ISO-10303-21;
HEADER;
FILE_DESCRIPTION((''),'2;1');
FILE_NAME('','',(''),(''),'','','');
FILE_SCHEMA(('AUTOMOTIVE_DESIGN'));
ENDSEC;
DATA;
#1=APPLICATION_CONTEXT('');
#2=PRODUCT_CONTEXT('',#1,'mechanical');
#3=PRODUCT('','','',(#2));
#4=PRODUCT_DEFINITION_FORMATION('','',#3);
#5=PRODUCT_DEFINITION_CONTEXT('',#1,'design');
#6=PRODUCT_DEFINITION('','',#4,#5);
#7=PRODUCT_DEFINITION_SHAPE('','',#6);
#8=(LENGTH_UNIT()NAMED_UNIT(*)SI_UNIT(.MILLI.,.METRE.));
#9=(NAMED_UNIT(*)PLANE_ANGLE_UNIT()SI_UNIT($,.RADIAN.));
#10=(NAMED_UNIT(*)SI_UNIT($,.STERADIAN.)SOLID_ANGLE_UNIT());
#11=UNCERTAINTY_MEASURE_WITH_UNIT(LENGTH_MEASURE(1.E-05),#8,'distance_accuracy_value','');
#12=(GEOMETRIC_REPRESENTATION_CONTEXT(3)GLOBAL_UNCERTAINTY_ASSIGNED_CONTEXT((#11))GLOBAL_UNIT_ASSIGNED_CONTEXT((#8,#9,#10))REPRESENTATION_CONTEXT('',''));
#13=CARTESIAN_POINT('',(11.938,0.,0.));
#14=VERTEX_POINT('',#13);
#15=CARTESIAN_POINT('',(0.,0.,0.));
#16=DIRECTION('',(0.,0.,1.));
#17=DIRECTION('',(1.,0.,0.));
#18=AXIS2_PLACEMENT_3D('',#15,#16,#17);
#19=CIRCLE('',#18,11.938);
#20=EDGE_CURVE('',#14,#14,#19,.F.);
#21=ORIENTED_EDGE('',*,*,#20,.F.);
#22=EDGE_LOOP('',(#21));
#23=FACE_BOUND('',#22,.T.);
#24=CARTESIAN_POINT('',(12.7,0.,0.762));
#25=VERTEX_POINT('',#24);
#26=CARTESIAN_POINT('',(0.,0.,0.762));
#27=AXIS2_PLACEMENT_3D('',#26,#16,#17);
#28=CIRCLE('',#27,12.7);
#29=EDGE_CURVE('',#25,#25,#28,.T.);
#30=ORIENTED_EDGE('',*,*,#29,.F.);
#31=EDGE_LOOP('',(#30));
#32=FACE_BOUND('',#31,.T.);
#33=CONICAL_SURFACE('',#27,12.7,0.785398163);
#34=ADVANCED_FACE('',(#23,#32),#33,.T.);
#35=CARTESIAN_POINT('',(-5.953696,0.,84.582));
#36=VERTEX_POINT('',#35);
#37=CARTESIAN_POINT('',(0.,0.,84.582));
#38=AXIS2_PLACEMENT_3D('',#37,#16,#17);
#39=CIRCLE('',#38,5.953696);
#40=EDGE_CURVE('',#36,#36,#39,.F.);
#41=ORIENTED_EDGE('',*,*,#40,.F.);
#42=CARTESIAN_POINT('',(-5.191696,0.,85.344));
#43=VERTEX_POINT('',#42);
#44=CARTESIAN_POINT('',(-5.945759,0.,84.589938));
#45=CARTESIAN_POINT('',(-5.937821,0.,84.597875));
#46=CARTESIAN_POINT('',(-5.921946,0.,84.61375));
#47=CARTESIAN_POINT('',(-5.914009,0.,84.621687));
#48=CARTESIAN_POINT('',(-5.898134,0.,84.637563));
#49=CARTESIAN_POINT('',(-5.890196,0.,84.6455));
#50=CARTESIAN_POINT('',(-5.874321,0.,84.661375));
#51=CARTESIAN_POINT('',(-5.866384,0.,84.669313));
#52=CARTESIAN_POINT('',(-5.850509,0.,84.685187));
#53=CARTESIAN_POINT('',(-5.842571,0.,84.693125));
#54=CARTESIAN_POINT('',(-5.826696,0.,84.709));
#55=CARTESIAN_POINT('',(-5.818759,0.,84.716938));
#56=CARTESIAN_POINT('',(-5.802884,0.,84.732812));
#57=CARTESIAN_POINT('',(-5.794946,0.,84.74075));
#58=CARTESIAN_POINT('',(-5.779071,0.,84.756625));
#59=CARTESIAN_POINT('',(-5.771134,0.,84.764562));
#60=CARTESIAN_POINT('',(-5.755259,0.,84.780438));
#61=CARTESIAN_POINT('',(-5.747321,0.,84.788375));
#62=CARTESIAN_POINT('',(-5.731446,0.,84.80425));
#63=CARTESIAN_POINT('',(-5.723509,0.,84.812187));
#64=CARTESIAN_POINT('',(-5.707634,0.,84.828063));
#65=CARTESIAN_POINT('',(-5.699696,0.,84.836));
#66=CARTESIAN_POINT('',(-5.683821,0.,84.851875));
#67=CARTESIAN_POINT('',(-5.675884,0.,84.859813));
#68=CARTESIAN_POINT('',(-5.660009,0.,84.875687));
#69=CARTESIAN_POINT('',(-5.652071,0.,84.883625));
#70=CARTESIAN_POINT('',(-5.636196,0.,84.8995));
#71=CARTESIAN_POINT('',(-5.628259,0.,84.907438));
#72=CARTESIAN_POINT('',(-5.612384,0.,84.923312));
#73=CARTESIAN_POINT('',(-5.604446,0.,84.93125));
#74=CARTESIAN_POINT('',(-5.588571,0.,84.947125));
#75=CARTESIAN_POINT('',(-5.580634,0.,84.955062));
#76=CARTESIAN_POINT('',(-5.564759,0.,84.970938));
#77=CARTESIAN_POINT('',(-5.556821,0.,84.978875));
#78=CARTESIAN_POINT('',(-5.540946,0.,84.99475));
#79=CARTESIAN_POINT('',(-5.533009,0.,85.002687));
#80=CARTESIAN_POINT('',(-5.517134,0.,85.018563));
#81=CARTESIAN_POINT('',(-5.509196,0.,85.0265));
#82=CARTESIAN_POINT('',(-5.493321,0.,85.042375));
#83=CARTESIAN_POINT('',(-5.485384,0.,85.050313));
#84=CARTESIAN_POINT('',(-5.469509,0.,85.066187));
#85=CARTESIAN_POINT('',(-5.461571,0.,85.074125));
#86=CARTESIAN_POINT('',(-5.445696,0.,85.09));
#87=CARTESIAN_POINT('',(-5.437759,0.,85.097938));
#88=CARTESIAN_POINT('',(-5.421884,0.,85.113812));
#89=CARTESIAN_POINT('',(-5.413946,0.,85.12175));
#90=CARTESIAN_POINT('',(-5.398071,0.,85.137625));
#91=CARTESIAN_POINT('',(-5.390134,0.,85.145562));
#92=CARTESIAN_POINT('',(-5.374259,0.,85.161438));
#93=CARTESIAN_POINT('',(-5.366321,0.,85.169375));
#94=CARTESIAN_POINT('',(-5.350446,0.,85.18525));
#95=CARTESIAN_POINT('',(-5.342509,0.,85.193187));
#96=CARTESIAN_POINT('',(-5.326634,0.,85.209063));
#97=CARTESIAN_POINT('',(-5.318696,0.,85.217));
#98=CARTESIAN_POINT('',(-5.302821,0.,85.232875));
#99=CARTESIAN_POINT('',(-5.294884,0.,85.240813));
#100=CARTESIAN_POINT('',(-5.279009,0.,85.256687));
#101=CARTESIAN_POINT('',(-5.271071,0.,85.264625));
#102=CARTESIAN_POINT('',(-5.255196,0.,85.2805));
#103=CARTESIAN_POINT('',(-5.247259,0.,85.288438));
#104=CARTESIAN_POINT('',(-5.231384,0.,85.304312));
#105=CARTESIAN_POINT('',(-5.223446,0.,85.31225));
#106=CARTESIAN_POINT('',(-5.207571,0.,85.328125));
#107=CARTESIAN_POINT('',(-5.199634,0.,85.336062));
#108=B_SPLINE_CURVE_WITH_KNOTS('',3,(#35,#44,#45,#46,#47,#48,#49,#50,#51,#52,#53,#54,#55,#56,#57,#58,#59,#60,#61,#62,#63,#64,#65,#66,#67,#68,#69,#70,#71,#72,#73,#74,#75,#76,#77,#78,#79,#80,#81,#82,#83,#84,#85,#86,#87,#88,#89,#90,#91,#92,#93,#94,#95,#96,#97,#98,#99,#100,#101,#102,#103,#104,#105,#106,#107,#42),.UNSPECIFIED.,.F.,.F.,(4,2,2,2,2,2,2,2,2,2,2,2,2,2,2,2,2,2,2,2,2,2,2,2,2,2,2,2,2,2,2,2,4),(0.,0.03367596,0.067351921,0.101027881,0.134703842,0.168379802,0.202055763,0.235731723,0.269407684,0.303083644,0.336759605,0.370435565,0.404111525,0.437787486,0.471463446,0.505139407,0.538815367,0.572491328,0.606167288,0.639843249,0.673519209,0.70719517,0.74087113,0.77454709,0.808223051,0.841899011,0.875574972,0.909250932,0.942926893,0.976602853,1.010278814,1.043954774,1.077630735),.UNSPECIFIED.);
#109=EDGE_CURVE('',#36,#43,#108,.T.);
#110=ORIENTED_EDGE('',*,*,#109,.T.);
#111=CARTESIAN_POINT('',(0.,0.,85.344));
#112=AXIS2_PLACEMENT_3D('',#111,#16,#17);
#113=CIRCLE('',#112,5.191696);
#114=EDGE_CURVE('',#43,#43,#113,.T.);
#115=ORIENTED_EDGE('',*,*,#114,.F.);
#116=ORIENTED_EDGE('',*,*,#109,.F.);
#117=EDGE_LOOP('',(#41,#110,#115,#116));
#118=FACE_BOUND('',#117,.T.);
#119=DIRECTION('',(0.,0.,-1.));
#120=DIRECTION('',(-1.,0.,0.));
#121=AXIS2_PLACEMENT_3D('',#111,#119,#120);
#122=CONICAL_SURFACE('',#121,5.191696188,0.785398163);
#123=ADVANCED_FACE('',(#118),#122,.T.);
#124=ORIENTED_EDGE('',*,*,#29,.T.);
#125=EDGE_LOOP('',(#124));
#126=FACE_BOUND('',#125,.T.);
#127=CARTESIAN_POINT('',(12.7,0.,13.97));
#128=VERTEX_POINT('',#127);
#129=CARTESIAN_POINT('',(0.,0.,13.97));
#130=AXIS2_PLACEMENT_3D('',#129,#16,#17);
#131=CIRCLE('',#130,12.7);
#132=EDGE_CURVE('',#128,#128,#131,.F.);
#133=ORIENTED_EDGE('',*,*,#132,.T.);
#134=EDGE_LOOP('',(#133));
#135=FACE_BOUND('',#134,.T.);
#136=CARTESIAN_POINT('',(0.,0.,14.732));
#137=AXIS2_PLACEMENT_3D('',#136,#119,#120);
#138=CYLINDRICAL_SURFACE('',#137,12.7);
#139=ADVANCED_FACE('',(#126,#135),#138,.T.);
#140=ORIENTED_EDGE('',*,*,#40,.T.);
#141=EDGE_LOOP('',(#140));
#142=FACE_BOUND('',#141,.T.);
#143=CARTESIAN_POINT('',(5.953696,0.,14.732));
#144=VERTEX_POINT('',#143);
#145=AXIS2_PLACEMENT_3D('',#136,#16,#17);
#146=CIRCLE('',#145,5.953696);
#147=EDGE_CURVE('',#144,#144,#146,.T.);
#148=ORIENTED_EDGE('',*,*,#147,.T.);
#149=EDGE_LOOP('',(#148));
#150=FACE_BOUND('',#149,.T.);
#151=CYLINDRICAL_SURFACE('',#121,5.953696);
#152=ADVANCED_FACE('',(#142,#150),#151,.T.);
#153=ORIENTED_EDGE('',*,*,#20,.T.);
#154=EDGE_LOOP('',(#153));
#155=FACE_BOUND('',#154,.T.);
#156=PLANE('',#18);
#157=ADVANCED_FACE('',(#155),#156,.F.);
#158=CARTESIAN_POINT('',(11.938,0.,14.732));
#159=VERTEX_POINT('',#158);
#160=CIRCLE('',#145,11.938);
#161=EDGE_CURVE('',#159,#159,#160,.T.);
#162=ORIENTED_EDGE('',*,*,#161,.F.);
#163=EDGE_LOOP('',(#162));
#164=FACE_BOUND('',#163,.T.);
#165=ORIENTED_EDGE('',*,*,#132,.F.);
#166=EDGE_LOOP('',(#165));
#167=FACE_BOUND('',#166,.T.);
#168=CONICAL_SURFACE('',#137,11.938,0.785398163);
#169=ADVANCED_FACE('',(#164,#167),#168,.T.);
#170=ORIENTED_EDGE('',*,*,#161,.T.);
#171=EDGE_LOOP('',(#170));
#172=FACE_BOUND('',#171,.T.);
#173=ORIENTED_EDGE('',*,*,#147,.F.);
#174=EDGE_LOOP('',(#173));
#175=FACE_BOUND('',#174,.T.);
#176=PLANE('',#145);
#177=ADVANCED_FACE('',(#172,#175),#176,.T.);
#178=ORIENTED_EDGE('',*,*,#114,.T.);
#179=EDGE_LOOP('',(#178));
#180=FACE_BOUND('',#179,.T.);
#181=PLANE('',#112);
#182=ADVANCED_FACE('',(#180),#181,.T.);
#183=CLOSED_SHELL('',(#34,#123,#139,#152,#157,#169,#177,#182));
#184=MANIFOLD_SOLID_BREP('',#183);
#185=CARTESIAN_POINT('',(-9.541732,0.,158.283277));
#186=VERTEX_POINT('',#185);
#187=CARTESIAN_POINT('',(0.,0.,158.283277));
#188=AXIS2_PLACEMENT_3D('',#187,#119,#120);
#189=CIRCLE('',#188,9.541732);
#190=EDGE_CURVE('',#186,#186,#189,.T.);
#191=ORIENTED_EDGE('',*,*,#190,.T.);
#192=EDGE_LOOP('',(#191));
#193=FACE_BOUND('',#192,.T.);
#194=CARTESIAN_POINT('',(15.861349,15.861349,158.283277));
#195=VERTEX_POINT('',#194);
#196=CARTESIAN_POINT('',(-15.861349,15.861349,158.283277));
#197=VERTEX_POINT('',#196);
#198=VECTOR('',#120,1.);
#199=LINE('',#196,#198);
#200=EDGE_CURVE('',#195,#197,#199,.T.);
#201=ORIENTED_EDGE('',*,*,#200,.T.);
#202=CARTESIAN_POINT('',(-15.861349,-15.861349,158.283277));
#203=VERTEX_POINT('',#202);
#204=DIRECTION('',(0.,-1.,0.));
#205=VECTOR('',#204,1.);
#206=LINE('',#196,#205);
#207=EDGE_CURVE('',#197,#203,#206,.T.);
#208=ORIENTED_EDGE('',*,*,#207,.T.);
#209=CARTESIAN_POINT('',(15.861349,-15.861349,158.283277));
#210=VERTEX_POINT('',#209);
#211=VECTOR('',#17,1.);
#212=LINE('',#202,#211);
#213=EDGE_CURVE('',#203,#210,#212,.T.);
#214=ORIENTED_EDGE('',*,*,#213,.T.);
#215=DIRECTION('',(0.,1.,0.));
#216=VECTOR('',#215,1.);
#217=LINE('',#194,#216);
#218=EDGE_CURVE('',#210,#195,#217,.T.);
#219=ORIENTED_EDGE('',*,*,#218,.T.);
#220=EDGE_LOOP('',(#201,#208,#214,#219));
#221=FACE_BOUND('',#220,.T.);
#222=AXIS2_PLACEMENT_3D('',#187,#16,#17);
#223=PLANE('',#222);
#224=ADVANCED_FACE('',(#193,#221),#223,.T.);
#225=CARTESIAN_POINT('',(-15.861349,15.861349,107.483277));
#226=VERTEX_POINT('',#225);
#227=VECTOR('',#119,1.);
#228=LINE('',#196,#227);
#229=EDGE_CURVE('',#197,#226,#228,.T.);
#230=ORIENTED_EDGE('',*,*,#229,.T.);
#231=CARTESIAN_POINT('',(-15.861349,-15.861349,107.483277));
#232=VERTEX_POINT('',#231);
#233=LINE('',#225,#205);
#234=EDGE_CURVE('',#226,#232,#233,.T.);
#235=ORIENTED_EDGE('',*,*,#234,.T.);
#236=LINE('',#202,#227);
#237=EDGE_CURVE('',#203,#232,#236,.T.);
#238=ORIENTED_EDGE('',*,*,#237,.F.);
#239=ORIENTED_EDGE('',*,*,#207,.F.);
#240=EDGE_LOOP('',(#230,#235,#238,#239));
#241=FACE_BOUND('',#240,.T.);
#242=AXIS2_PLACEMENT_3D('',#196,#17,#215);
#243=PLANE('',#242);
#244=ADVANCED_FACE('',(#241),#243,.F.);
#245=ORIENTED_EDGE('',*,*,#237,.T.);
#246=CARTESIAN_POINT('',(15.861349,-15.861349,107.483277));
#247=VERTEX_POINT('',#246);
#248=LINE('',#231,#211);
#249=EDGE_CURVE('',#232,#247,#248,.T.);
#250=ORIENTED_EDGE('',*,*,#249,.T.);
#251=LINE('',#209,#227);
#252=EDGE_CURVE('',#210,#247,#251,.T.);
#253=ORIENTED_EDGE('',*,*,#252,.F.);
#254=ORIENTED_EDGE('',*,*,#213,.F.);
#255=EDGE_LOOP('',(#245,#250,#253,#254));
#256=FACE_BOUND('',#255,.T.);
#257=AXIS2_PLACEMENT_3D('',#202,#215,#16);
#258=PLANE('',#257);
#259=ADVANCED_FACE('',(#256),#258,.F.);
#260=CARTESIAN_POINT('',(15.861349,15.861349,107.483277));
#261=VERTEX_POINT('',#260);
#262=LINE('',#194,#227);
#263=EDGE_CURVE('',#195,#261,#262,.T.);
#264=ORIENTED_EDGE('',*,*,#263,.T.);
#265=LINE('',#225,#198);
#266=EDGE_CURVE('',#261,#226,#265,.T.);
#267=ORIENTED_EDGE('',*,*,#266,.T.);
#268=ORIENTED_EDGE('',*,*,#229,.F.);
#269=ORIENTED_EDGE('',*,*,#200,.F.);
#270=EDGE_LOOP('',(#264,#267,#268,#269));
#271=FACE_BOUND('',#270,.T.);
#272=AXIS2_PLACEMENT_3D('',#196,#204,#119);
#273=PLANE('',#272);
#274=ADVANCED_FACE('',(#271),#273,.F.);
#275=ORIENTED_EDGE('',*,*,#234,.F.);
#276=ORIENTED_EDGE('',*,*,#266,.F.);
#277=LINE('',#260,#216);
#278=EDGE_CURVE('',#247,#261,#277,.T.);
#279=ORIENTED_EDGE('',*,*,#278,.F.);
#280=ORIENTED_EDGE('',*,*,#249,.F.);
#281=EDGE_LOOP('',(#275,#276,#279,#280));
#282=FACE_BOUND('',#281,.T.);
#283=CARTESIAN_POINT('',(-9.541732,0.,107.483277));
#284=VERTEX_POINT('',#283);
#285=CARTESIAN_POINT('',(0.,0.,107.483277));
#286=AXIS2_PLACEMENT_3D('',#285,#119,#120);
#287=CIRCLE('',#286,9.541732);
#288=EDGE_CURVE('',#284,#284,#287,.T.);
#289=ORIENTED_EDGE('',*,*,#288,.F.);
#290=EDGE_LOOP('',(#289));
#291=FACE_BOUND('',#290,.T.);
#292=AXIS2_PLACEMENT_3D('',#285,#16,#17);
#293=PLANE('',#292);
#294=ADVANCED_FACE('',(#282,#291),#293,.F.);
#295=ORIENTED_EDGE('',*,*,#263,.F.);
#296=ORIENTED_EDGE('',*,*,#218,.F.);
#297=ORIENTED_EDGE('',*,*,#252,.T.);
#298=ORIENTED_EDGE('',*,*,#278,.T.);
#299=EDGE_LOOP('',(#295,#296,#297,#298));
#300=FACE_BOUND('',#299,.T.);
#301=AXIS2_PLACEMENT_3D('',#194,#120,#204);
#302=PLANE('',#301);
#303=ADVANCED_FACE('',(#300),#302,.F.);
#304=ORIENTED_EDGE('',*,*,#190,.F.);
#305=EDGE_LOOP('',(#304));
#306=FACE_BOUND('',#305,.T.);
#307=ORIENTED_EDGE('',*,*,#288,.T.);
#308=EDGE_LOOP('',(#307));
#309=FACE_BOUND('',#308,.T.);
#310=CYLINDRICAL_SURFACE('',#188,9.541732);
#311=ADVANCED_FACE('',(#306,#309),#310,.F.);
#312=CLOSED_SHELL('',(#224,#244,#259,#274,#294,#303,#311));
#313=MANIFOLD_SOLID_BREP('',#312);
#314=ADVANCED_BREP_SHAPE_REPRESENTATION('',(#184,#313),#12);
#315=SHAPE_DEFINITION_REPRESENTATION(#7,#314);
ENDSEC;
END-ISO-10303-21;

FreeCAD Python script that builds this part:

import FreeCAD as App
import Part
import Sketcher
Q = App.Units.Quantity


def edges_at(feature, points):
    """Names of the edges that pass closest to the given points."""
    edges = feature.Shape.Edges
    near = lambda p: min(range(len(edges)), key=lambda i: edges[i].distToShape(Part.Vertex(*p))[0])
    return sorted({f"Edge{near(p) + 1}" for p in points})


def add_polygon(sketch, points):
    """Adds a closed chain of lines whose ends are joined by coincident constraints."""
    first, n = sketch.GeometryCount, len(points)
    for a, b in zip(points, points[1:] + points[:1]):
        sketch.addGeometry(Part.LineSegment(App.Vector(*a, 0), App.Vector(*b, 0)), False)
    for i in range(n):
        sketch.addConstraint(Sketcher.Constraint("Coincident", first + i, 2, first + (i + 1) % n, 1))

doc = App.newDocument("Part")
body = doc.addObject("PartDesign::Body", "Body")

# Sketch on XY plane
sketch1 = body.newObject("Sketcher::SketchObject", "Sketch")
sketch1.AttachmentSupport = (doc.getObject("XY_Plane"), [""])
sketch1.MapMode = "FlatFace"
sketch1.addGeometry(Part.Circle(App.Vector(0, 0, 0), App.Vector(0, 0, 1), 12.7), False)
sketch1.addConstraint(Sketcher.Constraint("Coincident", 0, 3, -1, 1))
sketch1.addConstraint(Sketcher.Constraint("Diameter", 0, Q("1 in")))
pad1 = body.newObject("PartDesign::Pad", "Pad")
pad1.Profile = sketch1
pad1.Length = Q("0.58 in")

# Sketch on XY plane
sketch2 = body.newObject("Sketcher::SketchObject", "Sketch001")
sketch2.AttachmentSupport = (doc.getObject("XY_Plane"), [""])
sketch2.MapMode = "FlatFace"
sketch2.AttachmentOffset = App.Placement(App.Vector(0, 0, 0.58 * 25.4), App.Rotation())
sketch2.addGeometry(Part.Circle(App.Vector(0, 0, 0), App.Vector(0, 0, 1), 5.953696), False)
sketch2.addConstraint(Sketcher.Constraint("Coincident", 0, 3, -1, 1))
sketch2.addConstraint(Sketcher.Constraint("Diameter", 0, Q("11.907392 mm")))
pad2 = body.newObject("PartDesign::Pad", "Pad001")
pad2.Profile = sketch2
pad2.Length = Q("2.78 in")
doc.recompute()

chamfer = body.newObject("PartDesign::Chamfer", "Chamfer")
chamfer.Base = (pad2, edges_at(pad2, [(-12.7, 0, 0), (-12.7, 0, 14.732), (-5.954, 0, 85.344)]))
chamfer.Size = Q("0.03 in")
body2 = doc.addObject("PartDesign::Body", "Body001")

# Sketch on XY plane
sketch3 = body2.newObject("Sketcher::SketchObject", "Sketch002")
sketch3.AttachmentSupport = (doc.getObject("XY_Plane001"), [""])
sketch3.MapMode = "FlatFace"
sketch3.AttachmentOffset = App.Placement(App.Vector(0, 0, 107.483277), App.Rotation())
add_polygon(sketch3, [(-15.861349, 15.861349), (-15.861349, -15.861349), (15.861349, -15.861349), (15.861349, 15.861349)])  # lines 0-3
sketch3.addConstraint(Sketcher.Constraint("Vertical", 0))
sketch3.addConstraint(Sketcher.Constraint("Horizontal", 1))
sketch3.addConstraint(Sketcher.Constraint("Vertical", 2))
sketch3.addConstraint(Sketcher.Constraint("Horizontal", 3))
sketch3.addConstraint(Sketcher.Constraint("Symmetric", 0, 2, 2, 2, -1, 1))
sketch3.addConstraint(Sketcher.Constraint("Equal", 3, 0))
sketch3.addConstraint(Sketcher.Constraint("DistanceX", 1, 1, 1, 2, Q("31.722698 mm")))
pad3 = body2.newObject("PartDesign::Pad", "Pad002")
pad3.Profile = sketch3
pad3.Length = Q("2 in")

# Sketch on XY plane
sketch4 = body2.newObject("Sketcher::SketchObject", "Sketch003")
sketch4.AttachmentSupport = (doc.getObject("XY_Plane001"), [""])
sketch4.MapMode = "FlatFace"
sketch4.AttachmentOffset = App.Placement(App.Vector(0, 0, 107.483277), App.Rotation())
sketch4.addGeometry(Part.Circle(App.Vector(0, 0, 0), App.Vector(0, 0, 1), 9.541732), False)
sketch4.addConstraint(Sketcher.Constraint("Coincident", 0, 3, -1, 1))
sketch4.addConstraint(Sketcher.Constraint("Diameter", 0, Q("19.083464 mm")))
pocket1 = body2.newObject("PartDesign::Pocket", "Pocket")
pocket1.Profile = sketch4
pocket1.Type = "ThroughAll"
pocket1.Reversed = True

doc.recompute()
